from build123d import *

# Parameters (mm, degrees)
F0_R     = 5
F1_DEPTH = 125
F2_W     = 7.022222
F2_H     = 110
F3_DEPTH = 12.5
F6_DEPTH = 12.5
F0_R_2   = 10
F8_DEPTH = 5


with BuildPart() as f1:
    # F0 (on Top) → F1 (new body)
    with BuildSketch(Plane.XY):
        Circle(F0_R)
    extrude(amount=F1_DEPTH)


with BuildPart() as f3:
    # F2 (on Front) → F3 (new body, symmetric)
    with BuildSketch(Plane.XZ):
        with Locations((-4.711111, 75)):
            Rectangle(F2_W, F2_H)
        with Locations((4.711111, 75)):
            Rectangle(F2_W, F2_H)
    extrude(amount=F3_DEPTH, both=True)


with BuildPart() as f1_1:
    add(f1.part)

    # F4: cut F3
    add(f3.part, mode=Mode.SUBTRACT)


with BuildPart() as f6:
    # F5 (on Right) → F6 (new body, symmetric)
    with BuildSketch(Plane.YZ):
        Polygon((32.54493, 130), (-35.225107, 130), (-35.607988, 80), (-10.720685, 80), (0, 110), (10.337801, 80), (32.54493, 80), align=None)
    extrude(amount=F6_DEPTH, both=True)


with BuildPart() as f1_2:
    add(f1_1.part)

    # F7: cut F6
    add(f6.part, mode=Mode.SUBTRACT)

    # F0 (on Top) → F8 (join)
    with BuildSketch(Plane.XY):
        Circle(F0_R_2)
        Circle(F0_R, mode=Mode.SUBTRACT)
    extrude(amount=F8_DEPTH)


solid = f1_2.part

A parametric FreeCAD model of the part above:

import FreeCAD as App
import Part
import Sketcher
Q = App.Units.Quantity


def add_polygon(sketch, points):
    """Adds a closed chain of lines whose ends are joined by coincident constraints."""
    first, n = sketch.GeometryCount, len(points)
    for a, b in zip(points, points[1:] + points[:1]):
        sketch.addGeometry(Part.LineSegment(App.Vector(*a, 0), App.Vector(*b, 0)), False)
    for i in range(n):
        sketch.addConstraint(Sketcher.Constraint("Coincident", first + i, 2, first + (i + 1) % n, 1))

doc = App.newDocument("Part")
body = doc.addObject("PartDesign::Body", "Body")

# Sketch on XY plane
sketch1 = body.newObject("Sketcher::SketchObject", "Sketch")
sketch1.AttachmentSupport = (doc.getObject("XY_Plane"), [""])
sketch1.MapMode = "FlatFace"
sketch1.addGeometry(Part.Circle(App.Vector(0, 0, 0), App.Vector(0, 0, 1), 5), False)
sketch1.addConstraint(Sketcher.Constraint("Coincident", 0, 3, -1, 1))
sketch1.addConstraint(Sketcher.Constraint("Diameter", 0, Q("10 mm")))
pad1 = body.newObject("PartDesign::Pad", "Pad")
pad1.Profile = sketch1
pad1.Length = 125
body2 = doc.addObject("PartDesign::Body", "Body001")
body2.AllowCompound = True

# Sketch on XZ plane
sketch2 = body2.newObject("Sketcher::SketchObject", "Sketch001")
sketch2.AttachmentSupport = (doc.getObject("XZ_Plane001"), [""])
sketch2.MapMode = "FlatFace"
add_polygon(sketch2, [(-8, 130), (-8, 20), (-1, 20), (-1, 130)])  # lines 0-3
add_polygon(sketch2, [(1, 130), (1, 20), (8, 20), (8, 130)])  # lines 4-7
sketch2.addConstraint(Sketcher.Constraint("Vertical", 0))
sketch2.addConstraint(Sketcher.Constraint("Horizontal", 1))
sketch2.addConstraint(Sketcher.Constraint("Vertical", 2))
sketch2.addConstraint(Sketcher.Constraint("Horizontal", 3))
sketch2.addConstraint(Sketcher.Constraint("Vertical", 4))
sketch2.addConstraint(Sketcher.Constraint("Horizontal", 5))
sketch2.addConstraint(Sketcher.Constraint("Vertical", 6))
sketch2.addConstraint(Sketcher.Constraint("Horizontal", 7))
sketch2.addConstraint(Sketcher.Constraint("Symmetric", 1, 2, 4, 2, -2))
sketch2.addConstraint(Sketcher.Constraint("Symmetric", 3, 2, 6, 2, -2))
sketch2.addConstraint(Sketcher.Constraint("DistanceY", 0, 2, 0, 1, Q("110 mm")))
sketch2.addConstraint(Sketcher.Constraint("DistanceY", -1, 1, 0, 2, Q("20 mm")))
sketch2.addConstraint(Sketcher.Constraint("DistanceX", 1, 2, -1, 1, Q("1.2 mm")))
sketch2.addConstraint(Sketcher.Constraint("DistanceX", 1, 1, 1, 2, Q("7.022222 mm")))
pad2 = body2.newObject("PartDesign::Pad", "Pad001")
pad2.Profile = sketch2
pad2.Length = 25
pad2.Midplane = True
doc.recompute()

boolean = body.newObject("PartDesign::Boolean", "Boolean")
boolean.Type = "Cut"
boolean.addObjects([body2])
body3 = doc.addObject("PartDesign::Body", "Body002")

# Sketch on YZ plane
sketch3 = body3.newObject("Sketcher::SketchObject", "Sketch002")
sketch3.AttachmentSupport = (doc.getObject("YZ_Plane002"), [""])
sketch3.MapMode = "FlatFace"
add_polygon(sketch3, [(33, 130), (-35, 130), (-36, 80), (-11, 80), (0, 110), (10, 80), (33, 80)])  # lines 0-6
sketch3.addConstraint(Sketcher.Constraint("Horizontal", 0))
sketch3.addConstraint(Sketcher.Constraint("Horizontal", 2))
sketch3.addConstraint(Sketcher.Constraint("Horizontal", 5))
sketch3.addConstraint(Sketcher.Constraint("Vertical", 6))
sketch3.addConstraint(Sketcher.Constraint("PointOnObject", 3, 2, -2))
sketch3.addConstraint(Sketcher.Constraint("Horizontal", 2, 2, 4, 2))
sketch3.addConstraint(Sketcher.Constraint("DistanceY", 6, 1, 6, 2, Q("50 mm")))
sketch3.addConstraint(Sketcher.Constraint("DistanceY", -1, 1, 0, 2, Q("130 mm")))
sketch3.addConstraint(Sketcher.Constraint("DistanceY", -1, 1, 3, 2, Q("110 mm")))
sketch3.addConstraint(Sketcher.Constraint("DistanceX", 5, 1, 5, 2, Q("22.207129 mm")))
sketch3.addConstraint(Sketcher.Constraint("DistanceX", -1, 1, 4, 2, Q("10.337801 mm")))
sketch3.addConstraint(Sketcher.Constraint("DistanceX", 0, 2, 0, 1, Q("67.770037 mm")))
sketch3.addConstraint(Sketcher.Constraint("DistanceX", 2, 1, 2, 2, Q("24.887303 mm")))
sketch3.addConstraint(Sketcher.Constraint("DistanceX", 1, 2, 0, 2, Q("0.382881 mm")))
pad3 = body3.newObject("PartDesign::Pad", "Pad002")
pad3.Profile = sketch3
pad3.Length = 25
pad3.Midplane = True
doc.recompute()

boolean2 = body.newObject("PartDesign::Boolean", "Boolean001")
boolean2.Type = "Cut"
boolean2.addObjects([body3])

# Sketch on XY plane
sketch4 = body.newObject("Sketcher::SketchObject", "Sketch003")
sketch4.AttachmentSupport = (doc.getObject("XY_Plane"), [""])
sketch4.MapMode = "FlatFace"
sketch4.addGeometry(Part.Circle(App.Vector(0, 0, 0), App.Vector(0, 0, 1), 10), False)
sketch4.addGeometry(Part.Circle(App.Vector(0, 0, 0), App.Vector(0, 0, 1), 5), False)
sketch4.addConstraint(Sketcher.Constraint("Coincident", 0, 3, -1, 1))
sketch4.addConstraint(Sketcher.Constraint("Coincident", 1, 3, -1, 1))
sketch4.addConstraint(Sketcher.Constraint("Diameter", 0, Q("20 mm")))
sketch4.addConstraint(Sketcher.Constraint("Diameter", 1, Q("10 mm")))
pad4 = body.newObject("PartDesign::Pad", "Pad003")
pad4.Profile = sketch4
pad4.Length = 5

doc.recompute()
